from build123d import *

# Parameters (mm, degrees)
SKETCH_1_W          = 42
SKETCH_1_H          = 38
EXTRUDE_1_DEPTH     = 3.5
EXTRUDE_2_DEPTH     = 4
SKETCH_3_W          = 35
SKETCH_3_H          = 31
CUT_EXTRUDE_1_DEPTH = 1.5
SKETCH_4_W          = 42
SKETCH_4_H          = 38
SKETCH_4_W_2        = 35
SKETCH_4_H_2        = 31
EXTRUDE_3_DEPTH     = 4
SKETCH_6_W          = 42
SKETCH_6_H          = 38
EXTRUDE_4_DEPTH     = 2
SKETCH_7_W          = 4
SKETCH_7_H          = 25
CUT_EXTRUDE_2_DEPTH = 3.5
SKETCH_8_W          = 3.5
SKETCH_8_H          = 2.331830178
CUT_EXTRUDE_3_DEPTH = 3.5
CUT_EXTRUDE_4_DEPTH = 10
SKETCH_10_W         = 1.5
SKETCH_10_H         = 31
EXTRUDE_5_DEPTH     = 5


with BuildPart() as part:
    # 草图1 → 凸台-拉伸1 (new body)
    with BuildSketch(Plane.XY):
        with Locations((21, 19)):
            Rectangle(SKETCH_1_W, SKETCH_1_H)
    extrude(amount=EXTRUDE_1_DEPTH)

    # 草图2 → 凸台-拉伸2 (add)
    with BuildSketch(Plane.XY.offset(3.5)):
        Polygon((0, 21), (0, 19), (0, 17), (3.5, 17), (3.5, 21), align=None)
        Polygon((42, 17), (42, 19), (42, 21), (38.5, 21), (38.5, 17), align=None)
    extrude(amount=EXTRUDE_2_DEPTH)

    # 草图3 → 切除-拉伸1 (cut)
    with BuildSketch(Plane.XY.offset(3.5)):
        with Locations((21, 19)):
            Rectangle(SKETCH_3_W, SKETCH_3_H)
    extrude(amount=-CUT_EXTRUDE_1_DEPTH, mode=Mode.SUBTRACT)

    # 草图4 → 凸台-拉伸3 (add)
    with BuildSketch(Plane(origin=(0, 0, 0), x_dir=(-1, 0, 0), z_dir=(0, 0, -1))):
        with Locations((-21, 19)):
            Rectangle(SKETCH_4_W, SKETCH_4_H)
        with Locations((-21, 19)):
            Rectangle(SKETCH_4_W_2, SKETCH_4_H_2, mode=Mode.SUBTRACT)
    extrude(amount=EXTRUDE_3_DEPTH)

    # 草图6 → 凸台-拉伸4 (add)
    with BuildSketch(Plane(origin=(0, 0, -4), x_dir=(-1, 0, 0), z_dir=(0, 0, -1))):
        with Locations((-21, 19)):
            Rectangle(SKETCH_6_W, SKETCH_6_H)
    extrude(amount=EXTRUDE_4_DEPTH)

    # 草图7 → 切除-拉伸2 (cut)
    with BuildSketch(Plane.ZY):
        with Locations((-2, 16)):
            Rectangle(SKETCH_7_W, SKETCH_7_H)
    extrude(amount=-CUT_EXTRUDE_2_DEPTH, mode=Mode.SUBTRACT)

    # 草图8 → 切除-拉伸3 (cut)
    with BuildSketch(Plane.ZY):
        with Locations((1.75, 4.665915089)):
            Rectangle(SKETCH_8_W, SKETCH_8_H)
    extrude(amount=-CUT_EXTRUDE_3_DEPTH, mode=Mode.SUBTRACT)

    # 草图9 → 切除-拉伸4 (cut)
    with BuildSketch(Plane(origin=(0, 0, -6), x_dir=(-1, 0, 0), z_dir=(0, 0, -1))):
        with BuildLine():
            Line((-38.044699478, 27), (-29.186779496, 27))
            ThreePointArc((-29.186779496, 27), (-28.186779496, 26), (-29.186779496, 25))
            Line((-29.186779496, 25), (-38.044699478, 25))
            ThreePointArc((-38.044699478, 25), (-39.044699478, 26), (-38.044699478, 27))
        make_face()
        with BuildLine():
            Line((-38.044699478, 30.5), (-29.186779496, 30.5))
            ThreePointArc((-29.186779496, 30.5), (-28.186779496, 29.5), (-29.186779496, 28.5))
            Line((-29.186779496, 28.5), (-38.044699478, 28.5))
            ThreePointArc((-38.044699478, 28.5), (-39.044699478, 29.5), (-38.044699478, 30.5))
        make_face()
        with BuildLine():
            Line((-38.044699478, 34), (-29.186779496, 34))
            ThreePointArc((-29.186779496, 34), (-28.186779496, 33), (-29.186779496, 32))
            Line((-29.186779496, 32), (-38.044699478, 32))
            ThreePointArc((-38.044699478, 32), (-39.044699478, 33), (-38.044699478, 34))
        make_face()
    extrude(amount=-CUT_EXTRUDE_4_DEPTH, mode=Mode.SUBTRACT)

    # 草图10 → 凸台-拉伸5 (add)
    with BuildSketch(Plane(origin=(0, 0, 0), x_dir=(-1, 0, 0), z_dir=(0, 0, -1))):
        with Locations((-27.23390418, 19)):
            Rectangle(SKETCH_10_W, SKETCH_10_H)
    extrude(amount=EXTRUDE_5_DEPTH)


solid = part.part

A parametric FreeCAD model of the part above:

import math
import FreeCAD as App
import Part
import Sketcher
Q = App.Units.Quantity

doc = App.newDocument("Part")
params = doc.addObject("Spreadsheet::Sheet", "Params")
for row, (alias, value) in enumerate([
    ("sketch1_width", "42 mm"),
    ("sketch1_height", "38 mm"),
    ("pad1_length", "3.5 mm"),
    ("sketch2_height", "4 mm"),
    ("sketch2_width", "3.5 mm"),
    ("pad2_length", "4 mm"),
    ("sketch3_width", "35 mm"),
    ("sketch3_height", "31 mm"),
    ("pocket1_length", "1.5 mm"),
    ("sketch4_width", "42 mm"),
    ("sketch4_width2", "35 mm"),
    ("sketch4_height", "38 mm"),
    ("sketch4_height2", "31 mm"),
    ("pad3_length", "4 mm"),
    ("sketch5_width", "42 mm"),
    ("sketch5_height", "38 mm"),
    ("pad4_length", "2 mm"),
    ("sketch6_width", "25 mm"),
    ("sketch6_height", "4 mm"),
    ("pocket2_length", "3.5 mm"),
    ("sketch7_height", "3.5 mm"),
    ("pocket3_length", "3.5 mm"),
    ("sketch8_radius", "1 mm"),
    ("pocket4_length", "10 mm"),
    ("sketch9_height", "31 mm"),
    ("sketch9_width", "1.5 mm"),
    ("pad5_length", "5 mm"),
], start=1):
    params.set(f"A{row}", alias)
    params.set(f"B{row}", "=" + value)
    params.setAlias(f"B{row}", alias)

body = doc.addObject("PartDesign::Body", "Body")

# Sketch on XY plane
sketch1 = doc.addObject("Sketcher::SketchObject", "Sketch")
body.addObject(sketch1)
sketch1.AttachmentSupport = (doc.XY_Plane, [""])
sketch1.MapMode = "FlatFace"
sketch1.addGeometry(Part.LineSegment(App.Vector(0, 38, 0), App.Vector(0, 0, 0)), False)
sketch1.addGeometry(Part.LineSegment(App.Vector(0, 0, 0), App.Vector(42, 0, 0)), False)
sketch1.addGeometry(Part.LineSegment(App.Vector(42, 0, 0), App.Vector(42, 38, 0)), False)
sketch1.addGeometry(Part.LineSegment(App.Vector(42, 38, 0), App.Vector(0, 38, 0)), False)
sketch1.addConstraint(Sketcher.Constraint("Coincident", 0, 2, 1, 1))
sketch1.addConstraint(Sketcher.Constraint("Coincident", 1, 2, 2, 1))
sketch1.addConstraint(Sketcher.Constraint("Coincident", 2, 2, 3, 1))
sketch1.addConstraint(Sketcher.Constraint("Coincident", 3, 2, 0, 1))
sketch1.addConstraint(Sketcher.Constraint("Vertical", 0))
sketch1.addConstraint(Sketcher.Constraint("Horizontal", 1))
sketch1.addConstraint(Sketcher.Constraint("Vertical", 2))
sketch1.addConstraint(Sketcher.Constraint("Horizontal", 3))
sketch1.addConstraint(Sketcher.Constraint("Coincident", 0, 2, -1, 1))
sketch1.addConstraint(Sketcher.Constraint("DistanceX", 1, 1, 1, 2, Q("42 mm")))
sketch1.addConstraint(Sketcher.Constraint("DistanceY", 0, 2, 0, 1, Q("38 mm")))
sketch1.setExpression("Constraints[9]", "Params.sketch1_width")
sketch1.setExpression("Constraints[10]", "Params.sketch1_height")
pad1 = doc.addObject("PartDesign::Pad", "Pad")
body.addObject(pad1)
pad1.Profile = sketch1
pad1.setExpression("Length", "Params.pad1_length")

# Sketch on XY plane
sketch2 = doc.addObject("Sketcher::SketchObject", "Sketch001")
body.addObject(sketch2)
sketch2.AttachmentSupport = (doc.XY_Plane, [""])
sketch2.MapMode = "FlatFace"
sketch2.AttachmentOffset = App.Placement(App.Vector(0, 0, 3.5), App.Rotation())
sketch2.addGeometry(Part.LineSegment(App.Vector(0, 21, 0), App.Vector(0, 17, 0)), False)
sketch2.addGeometry(Part.LineSegment(App.Vector(0, 17, 0), App.Vector(3.5, 17, 0)), False)
sketch2.addGeometry(Part.LineSegment(App.Vector(3.5, 17, 0), App.Vector(3.5, 21, 0)), False)
sketch2.addGeometry(Part.LineSegment(App.Vector(3.5, 21, 0), App.Vector(0, 21, 0)), False)
sketch2.addGeometry(Part.LineSegment(App.Vector(42, 17, 0), App.Vector(42, 21, 0)), False)
sketch2.addGeometry(Part.LineSegment(App.Vector(42, 21, 0), App.Vector(38.5, 21, 0)), False)
sketch2.addGeometry(Part.LineSegment(App.Vector(38.5, 21, 0), App.Vector(38.5, 17, 0)), False)
sketch2.addGeometry(Part.LineSegment(App.Vector(38.5, 17, 0), App.Vector(42, 17, 0)), False)
sketch2.addConstraint(Sketcher.Constraint("Coincident", 0, 2, 1, 1))
sketch2.addConstraint(Sketcher.Constraint("Coincident", 1, 2, 2, 1))
sketch2.addConstraint(Sketcher.Constraint("Coincident", 2, 2, 3, 1))
sketch2.addConstraint(Sketcher.Constraint("Coincident", 3, 2, 0, 1))
sketch2.addConstraint(Sketcher.Constraint("Coincident", 4, 2, 5, 1))
sketch2.addConstraint(Sketcher.Constraint("Coincident", 5, 2, 6, 1))
sketch2.addConstraint(Sketcher.Constraint("Coincident", 6, 2, 7, 1))
sketch2.addConstraint(Sketcher.Constraint("Coincident", 7, 2, 4, 1))
sketch2.addConstraint(Sketcher.Constraint("Vertical", 0))
sketch2.addConstraint(Sketcher.Constraint("Horizontal", 1))
sketch2.addConstraint(Sketcher.Constraint("Vertical", 2))
sketch2.addConstraint(Sketcher.Constraint("Horizontal", 3))
sketch2.addConstraint(Sketcher.Constraint("Vertical", 4))
sketch2.addConstraint(Sketcher.Constraint("Horizontal", 5))
sketch2.addConstraint(Sketcher.Constraint("Vertical", 6))
sketch2.addConstraint(Sketcher.Constraint("Horizontal", 7))
sketch2.addConstraint(Sketcher.Constraint("PointOnObject", 0, 2, -2))
sketch2.addConstraint(Sketcher.Constraint("Horizontal", 3, 2, 4, 2))
sketch2.addConstraint(Sketcher.Constraint("Horizontal", 1, 2, 6, 2))
sketch2.addConstraint(Sketcher.Constraint("Equal", 3, 5))
sketch2.addConstraint(Sketcher.Constraint("DistanceY", 0, 2, 0, 1, Q("4 mm")))
sketch2.addConstraint(Sketcher.Constraint("DistanceX", 1, 1, 1, 2, Q("3.5 mm")))
sketch2.addConstraint(Sketcher.Constraint("DistanceY", -1, 1, 0, 2, Q("17 mm")))
sketch2.addConstraint(Sketcher.Constraint("DistanceX", -1, 1, 4, 2, Q("42 mm")))
sketch2.setExpression("Constraints[20]", "Params.sketch2_height")
sketch2.setExpression("Constraints[21]", "Params.sketch2_width")
pad2 = doc.addObject("PartDesign::Pad", "Pad001")
body.addObject(pad2)
pad2.Profile = sketch2
pad2.setExpression("Length", "Params.pad2_length")

# Sketch on XY plane
sketch3 = doc.addObject("Sketcher::SketchObject", "Sketch002")
body.addObject(sketch3)
sketch3.AttachmentSupport = (doc.XY_Plane, [""])
sketch3.MapMode = "FlatFace"
sketch3.AttachmentOffset = App.Placement(App.Vector(0, 0, 3.5), App.Rotation())
sketch3.addGeometry(Part.LineSegment(App.Vector(4, 34, 0), App.Vector(4, 4, 0)), False)
sketch3.addGeometry(Part.LineSegment(App.Vector(4, 4, 0), App.Vector(38, 4, 0)), False)
sketch3.addGeometry(Part.LineSegment(App.Vector(38, 4, 0), App.Vector(38, 34, 0)), False)
sketch3.addGeometry(Part.LineSegment(App.Vector(38, 34, 0), App.Vector(4, 34, 0)), False)
sketch3.addConstraint(Sketcher.Constraint("Coincident", 0, 2, 1, 1))
sketch3.addConstraint(Sketcher.Constraint("Coincident", 1, 2, 2, 1))
sketch3.addConstraint(Sketcher.Constraint("Coincident", 2, 2, 3, 1))
sketch3.addConstraint(Sketcher.Constraint("Coincident", 3, 2, 0, 1))
sketch3.addConstraint(Sketcher.Constraint("Vertical", 0))
sketch3.addConstraint(Sketcher.Constraint("Horizontal", 1))
sketch3.addConstraint(Sketcher.Constraint("Vertical", 2))
sketch3.addConstraint(Sketcher.Constraint("Horizontal", 3))
sketch3.addConstraint(Sketcher.Constraint("DistanceX", 1, 1, 1, 2, Q("35 mm")))
sketch3.addConstraint(Sketcher.Constraint("DistanceY", 0, 2, 0, 1, Q("31 mm")))
sketch3.addConstraint(Sketcher.Constraint("DistanceX", -1, 1, 0, 2, Q("3.5 mm")))
sketch3.addConstraint(Sketcher.Constraint("DistanceY", -1, 1, 0, 2, Q("3.5 mm")))
sketch3.setExpression("Constraints[8]", "Params.sketch3_width")
sketch3.setExpression("Constraints[9]", "Params.sketch3_height")
pocket1 = doc.addObject("PartDesign::Pocket", "Pocket")
body.addObject(pocket1)
pocket1.Profile = sketch3
pocket1.setExpression("Length", "Params.pocket1_length")

# Sketch on XY plane
sketch4 = doc.addObject("Sketcher::SketchObject", "Sketch003")
body.addObject(sketch4)
sketch4.AttachmentSupport = (doc.XY_Plane, [""])
sketch4.MapMode = "FlatFace"
sketch4.addGeometry(Part.LineSegment(App.Vector(42, 38, 0), App.Vector(42, 0, 0)), False)
sketch4.addGeometry(Part.LineSegment(App.Vector(42, 0, 0), App.Vector(0, 0, 0)), False)
sketch4.addGeometry(Part.LineSegment(App.Vector(0, 0, 0), App.Vector(0, 38, 0)), False)
sketch4.addGeometry(Part.LineSegment(App.Vector(0, 38, 0), App.Vector(42, 38, 0)), False)
sketch4.addGeometry(Part.LineSegment(App.Vector(4, 4, 0), App.Vector(38, 4, 0)), False)
sketch4.addGeometry(Part.LineSegment(App.Vector(38, 4, 0), App.Vector(38, 34, 0)), False)
sketch4.addGeometry(Part.LineSegment(App.Vector(38, 34, 0), App.Vector(4, 34, 0)), False)
sketch4.addGeometry(Part.LineSegment(App.Vector(4, 34, 0), App.Vector(4, 4, 0)), False)
sketch4.addConstraint(Sketcher.Constraint("Coincident", 0, 2, 1, 1))
sketch4.addConstraint(Sketcher.Constraint("Coincident", 1, 2, 2, 1))
sketch4.addConstraint(Sketcher.Constraint("Coincident", 2, 2, 3, 1))
sketch4.addConstraint(Sketcher.Constraint("Coincident", 3, 2, 0, 1))
sketch4.addConstraint(Sketcher.Constraint("Coincident", 4, 2, 5, 1))
sketch4.addConstraint(Sketcher.Constraint("Coincident", 5, 2, 6, 1))
sketch4.addConstraint(Sketcher.Constraint("Coincident", 6, 2, 7, 1))
sketch4.addConstraint(Sketcher.Constraint("Coincident", 7, 2, 4, 1))
sketch4.addConstraint(Sketcher.Constraint("Vertical", 0))
sketch4.addConstraint(Sketcher.Constraint("Horizontal", 1))
sketch4.addConstraint(Sketcher.Constraint("Vertical", 2))
sketch4.addConstraint(Sketcher.Constraint("Horizontal", 3))
sketch4.addConstraint(Sketcher.Constraint("Horizontal", 4))
sketch4.addConstraint(Sketcher.Constraint("Vertical", 5))
sketch4.addConstraint(Sketcher.Constraint("Horizontal", 6))
sketch4.addConstraint(Sketcher.Constraint("Vertical", 7))
sketch4.addConstraint(Sketcher.Constraint("Coincident", 1, 2, -1, 1))
sketch4.addConstraint(Sketcher.Constraint("DistanceX", 1, 2, 1, 1, Q("42 mm")))
sketch4.addConstraint(Sketcher.Constraint("DistanceX", 4, 1, 4, 2, Q("35 mm")))
sketch4.addConstraint(Sketcher.Constraint("DistanceY", 0, 2, 0, 1, Q("38 mm")))
sketch4.addConstraint(Sketcher.Constraint("DistanceY", 5, 1, 5, 2, Q("31 mm")))
sketch4.addConstraint(Sketcher.Constraint("DistanceX", -1, 1, 4, 2, Q("38.5 mm")))
sketch4.addConstraint(Sketcher.Constraint("DistanceY", -1, 1, 4, 2, Q("3.5 mm")))
sketch4.setExpression("Constraints[17]", "Params.sketch4_width")
sketch4.setExpression("Constraints[18]", "Params.sketch4_width2")
sketch4.setExpression("Constraints[19]", "Params.sketch4_height")
sketch4.setExpression("Constraints[20]", "Params.sketch4_height2")
pad3 = doc.addObject("PartDesign::Pad", "Pad002")
body.addObject(pad3)
pad3.Profile = sketch4
pad3.setExpression("Length", "Params.pad3_length")
pad3.Reversed = True

# Sketch on XY plane
sketch5 = doc.addObject("Sketcher::SketchObject", "Sketch004")
body.addObject(sketch5)
sketch5.AttachmentSupport = (doc.XY_Plane, [""])
sketch5.MapMode = "FlatFace"
sketch5.AttachmentOffset = App.Placement(App.Vector(0, 0, -4), App.Rotation())
sketch5.addGeometry(Part.LineSegment(App.Vector(42, 38, 0), App.Vector(42, 0, 0)), False)
sketch5.addGeometry(Part.LineSegment(App.Vector(42, 0, 0), App.Vector(0, 0, 0)), False)
sketch5.addGeometry(Part.LineSegment(App.Vector(0, 0, 0), App.Vector(0, 38, 0)), False)
sketch5.addGeometry(Part.LineSegment(App.Vector(0, 38, 0), App.Vector(42, 38, 0)), False)
sketch5.addConstraint(Sketcher.Constraint("Coincident", 0, 2, 1, 1))
sketch5.addConstraint(Sketcher.Constraint("Coincident", 1, 2, 2, 1))
sketch5.addConstraint(Sketcher.Constraint("Coincident", 2, 2, 3, 1))
sketch5.addConstraint(Sketcher.Constraint("Coincident", 3, 2, 0, 1))
sketch5.addConstraint(Sketcher.Constraint("Vertical", 0))
sketch5.addConstraint(Sketcher.Constraint("Horizontal", 1))
sketch5.addConstraint(Sketcher.Constraint("Vertical", 2))
sketch5.addConstraint(Sketcher.Constraint("Horizontal", 3))
sketch5.addConstraint(Sketcher.Constraint("Coincident", 1, 2, -1, 1))
sketch5.addConstraint(Sketcher.Constraint("DistanceX", 1, 2, 1, 1, Q("42 mm")))
sketch5.addConstraint(Sketcher.Constraint("DistanceY", 0, 2, 0, 1, Q("38 mm")))
sketch5.setExpression("Constraints[9]", "Params.sketch5_width")
sketch5.setExpression("Constraints[10]", "Params.sketch5_height")
pad4 = doc.addObject("PartDesign::Pad", "Pad003")
body.addObject(pad4)
pad4.Profile = sketch5
pad4.setExpression("Length", "Params.pad4_length")
pad4.Reversed = True

# Sketch on YZ plane
sketch6 = doc.addObject("Sketcher::SketchObject", "Sketch005")
body.addObject(sketch6)
sketch6.AttachmentSupport = (doc.YZ_Plane, [""])
sketch6.MapMode = "FlatFace"
sketch6.addGeometry(Part.LineSegment(App.Vector(28.5, -4, 0), App.Vector(3.5, -4, 0)), False)
sketch6.addGeometry(Part.LineSegment(App.Vector(3.5, -4, 0), App.Vector(3.5, 0, 0)), False)
sketch6.addGeometry(Part.LineSegment(App.Vector(3.5, 0, 0), App.Vector(28.5, 0, 0)), False)
sketch6.addGeometry(Part.LineSegment(App.Vector(28.5, 0, 0), App.Vector(28.5, -4, 0)), False)
sketch6.addConstraint(Sketcher.Constraint("Coincident", 0, 2, 1, 1))
sketch6.addConstraint(Sketcher.Constraint("Coincident", 1, 2, 2, 1))
sketch6.addConstraint(Sketcher.Constraint("Coincident", 2, 2, 3, 1))
sketch6.addConstraint(Sketcher.Constraint("Coincident", 3, 2, 0, 1))
sketch6.addConstraint(Sketcher.Constraint("Horizontal", 0))
sketch6.addConstraint(Sketcher.Constraint("Vertical", 1))
sketch6.addConstraint(Sketcher.Constraint("Horizontal", 2))
sketch6.addConstraint(Sketcher.Constraint("Vertical", 3))
sketch6.addConstraint(Sketcher.Constraint("PointOnObject", 1, 2, -1))
sketch6.addConstraint(Sketcher.Constraint("DistanceX", 0, 2, 0, 1, Q("25 mm")))
sketch6.addConstraint(Sketcher.Constraint("DistanceY", 1, 1, 1, 2, Q("4 mm")))
sketch6.addConstraint(Sketcher.Constraint("DistanceX", -1, 1, 0, 2, Q("3.5 mm")))
sketch6.setExpression("Constraints[9]", "Params.sketch6_width")
sketch6.setExpression("Constraints[10]", "Params.sketch6_height")
pocket2 = doc.addObject("PartDesign::Pocket", "Pocket001")
body.addObject(pocket2)
pocket2.Profile = sketch6
pocket2.setExpression("Length", "Params.pocket2_length")
pocket2.Reversed = True

# Sketch on YZ plane
sketch7 = doc.addObject("Sketcher::SketchObject", "Sketch006")
body.addObject(sketch7)
sketch7.AttachmentSupport = (doc.YZ_Plane, [""])
sketch7.MapMode = "FlatFace"
sketch7.addGeometry(Part.LineSegment(App.Vector(5.8, 0, 0), App.Vector(3.5, 0, 0)), False)
sketch7.addGeometry(Part.LineSegment(App.Vector(3.5, 0, 0), App.Vector(3.5, 3.5, 0)), False)
sketch7.addGeometry(Part.LineSegment(App.Vector(3.5, 3.5, 0), App.Vector(5.8, 3.5, 0)), False)
sketch7.addGeometry(Part.LineSegment(App.Vector(5.8, 3.5, 0), App.Vector(5.8, 0, 0)), False)
sketch7.addConstraint(Sketcher.Constraint("Coincident", 0, 2, 1, 1))
sketch7.addConstraint(Sketcher.Constraint("Coincident", 1, 2, 2, 1))
sketch7.addConstraint(Sketcher.Constraint("Coincident", 2, 2, 3, 1))
sketch7.addConstraint(Sketcher.Constraint("Coincident", 3, 2, 0, 1))
sketch7.addConstraint(Sketcher.Constraint("Horizontal", 0))
sketch7.addConstraint(Sketcher.Constraint("Vertical", 1))
sketch7.addConstraint(Sketcher.Constraint("Horizontal", 2))
sketch7.addConstraint(Sketcher.Constraint("Vertical", 3))
sketch7.addConstraint(Sketcher.Constraint("PointOnObject", 0, 2, -1))
sketch7.addConstraint(Sketcher.Constraint("DistanceY", 1, 1, 1, 2, Q("3.5 mm")))
sketch7.addConstraint(Sketcher.Constraint("DistanceX", -1, 1, 0, 2, Q("3.5 mm")))
sketch7.addConstraint(Sketcher.Constraint("DistanceX", 0, 2, 0, 1, Q("2.33183 mm")))
sketch7.setExpression("Constraints[9]", "Params.sketch7_height")
pocket3 = doc.addObject("PartDesign::Pocket", "Pocket002")
body.addObject(pocket3)
pocket3.Profile = sketch7
pocket3.setExpression("Length", "Params.pocket3_length")
pocket3.Reversed = True

# Sketch on XY plane
sketch8 = doc.addObject("Sketcher::SketchObject", "Sketch007")
body.addObject(sketch8)
sketch8.AttachmentSupport = (doc.XY_Plane, [""])
sketch8.MapMode = "FlatFace"
sketch8.AttachmentOffset = App.Placement(App.Vector(0, 0, -6), App.Rotation())
sketch8.addGeometry(Part.LineSegment(App.Vector(29.2, 27, 0), App.Vector(38, 27, 0)), False)
sketch8.addGeometry(Part.ArcOfCircle(Part.Circle(App.Vector(38, 26, 0), App.Vector(0, 0, 1), 1), math.radians(-90), math.radians(90)), False)
sketch8.addGeometry(Part.LineSegment(App.Vector(38, 25, 0), App.Vector(29.2, 25, 0)), False)
sketch8.addGeometry(Part.ArcOfCircle(Part.Circle(App.Vector(29.2, 26, 0), App.Vector(0, 0, 1), 1), math.radians(90), math.radians(270)), False)
sketch8.addGeometry(Part.LineSegment(App.Vector(29.2, 30.5, 0), App.Vector(38, 30.5, 0)), False)
sketch8.addGeometry(Part.ArcOfCircle(Part.Circle(App.Vector(38, 29.5, 0), App.Vector(0, 0, 1), 1), math.radians(-90), math.radians(90)), False)
sketch8.addGeometry(Part.LineSegment(App.Vector(38, 28.5, 0), App.Vector(29.2, 28.5, 0)), False)
sketch8.addGeometry(Part.ArcOfCircle(Part.Circle(App.Vector(29.2, 29.5, 0), App.Vector(0, 0, 1), 1), math.radians(90), math.radians(270)), False)
sketch8.addGeometry(Part.LineSegment(App.Vector(29.2, 34, 0), App.Vector(38, 34, 0)), False)
sketch8.addGeometry(Part.ArcOfCircle(Part.Circle(App.Vector(38, 33, 0), App.Vector(0, 0, 1), 1), math.radians(-90), math.radians(90)), False)
sketch8.addGeometry(Part.LineSegment(App.Vector(38, 32, 0), App.Vector(29.2, 32, 0)), False)
sketch8.addGeometry(Part.ArcOfCircle(Part.Circle(App.Vector(29.2, 33, 0), App.Vector(0, 0, 1), 1), math.radians(90), math.radians(270)), False)
sketch8.addConstraint(Sketcher.Constraint("Tangent", 0, 2, 1, 2))
sketch8.addConstraint(Sketcher.Constraint("Tangent", 1, 1, 2, 1))
sketch8.addConstraint(Sketcher.Constraint("Tangent", 2, 2, 3, 2))
sketch8.addConstraint(Sketcher.Constraint("Tangent", 3, 1, 0, 1))
sketch8.addConstraint(Sketcher.Constraint("Tangent", 4, 2, 5, 2))
sketch8.addConstraint(Sketcher.Constraint("Tangent", 5, 1, 6, 1))
sketch8.addConstraint(Sketcher.Constraint("Tangent", 6, 2, 7, 2))
sketch8.addConstraint(Sketcher.Constraint("Tangent", 7, 1, 4, 1))
sketch8.addConstraint(Sketcher.Constraint("Tangent", 8, 2, 9, 2))
sketch8.addConstraint(Sketcher.Constraint("Tangent", 9, 1, 10, 1))
sketch8.addConstraint(Sketcher.Constraint("Tangent", 10, 2, 11, 2))
sketch8.addConstraint(Sketcher.Constraint("Tangent", 11, 1, 8, 1))
sketch8.addConstraint(Sketcher.Constraint("Horizontal", 0))
sketch8.addConstraint(Sketcher.Constraint("Horizontal", 2))
sketch8.addConstraint(Sketcher.Constraint("Horizontal", 4))
sketch8.addConstraint(Sketcher.Constraint("Horizontal", 6))
sketch8.addConstraint(Sketcher.Constraint("Horizontal", 8))
sketch8.addConstraint(Sketcher.Constraint("Horizontal", 10))
sketch8.addConstraint(Sketcher.Constraint("Equal", 3, 5))
sketch8.addConstraint(Sketcher.Constraint("Equal", 7, 9))
sketch8.addConstraint(Sketcher.Constraint("Vertical", 1, 3, 5, 3))
sketch8.addConstraint(Sketcher.Constraint("Vertical", 3, 3, 7, 3))
sketch8.addConstraint(Sketcher.Constraint("Vertical", 5, 3, 9, 3))
sketch8.addConstraint(Sketcher.Constraint("Vertical", 7, 3, 11, 3))
sketch8.addConstraint(Sketcher.Constraint("Radius", 1, Q("1 mm")))
sketch8.addConstraint(Sketcher.Constraint("DistanceY", -1, 1, 1, 3, Q("26 mm")))
sketch8.addConstraint(Sketcher.Constraint("DistanceY", -1, 1, 9, 3, Q("33 mm")))
sketch8.addConstraint(Sketcher.Constraint("DistanceY", -1, 1, 5, 3, Q("29.5 mm")))
sketch8.addConstraint(Sketcher.Constraint("DistanceX", 0, 1, 0, 2, Q("8.85792 mm")))
sketch8.addConstraint(Sketcher.Constraint("DistanceX", -1, 1, 1, 3, Q("38.044699 mm")))
sketch8.setExpression("Constraints[24]", "Params.sketch8_radius")
pocket4 = doc.addObject("PartDesign::Pocket", "Pocket003")
body.addObject(pocket4)
pocket4.Profile = sketch8
pocket4.setExpression("Length", "Params.pocket4_length")
pocket4.Reversed = True

# Sketch on XY plane
sketch9 = doc.addObject("Sketcher::SketchObject", "Sketch008")
body.addObject(sketch9)
sketch9.AttachmentSupport = (doc.XY_Plane, [""])
sketch9.MapMode = "FlatFace"
sketch9.addGeometry(Part.LineSegment(App.Vector(28, 34.5, 0), App.Vector(28, 3.5, 0)), False)
sketch9.addGeometry(Part.LineSegment(App.Vector(28, 3.5, 0), App.Vector(26.5, 3.5, 0)), False)
sketch9.addGeometry(Part.LineSegment(App.Vector(26.5, 3.5, 0), App.Vector(26.5, 34.5, 0)), False)
sketch9.addGeometry(Part.LineSegment(App.Vector(26.5, 34.5, 0), App.Vector(28, 34.5, 0)), False)
sketch9.addConstraint(Sketcher.Constraint("Coincident", 0, 2, 1, 1))
sketch9.addConstraint(Sketcher.Constraint("Coincident", 1, 2, 2, 1))
sketch9.addConstraint(Sketcher.Constraint("Coincident", 2, 2, 3, 1))
sketch9.addConstraint(Sketcher.Constraint("Coincident", 3, 2, 0, 1))
sketch9.addConstraint(Sketcher.Constraint("Vertical", 0))
sketch9.addConstraint(Sketcher.Constraint("Horizontal", 1))
sketch9.addConstraint(Sketcher.Constraint("Vertical", 2))
sketch9.addConstraint(Sketcher.Constraint("Horizontal", 3))
sketch9.addConstraint(Sketcher.Constraint("DistanceY", 0, 2, 0, 1, Q("31 mm")))
sketch9.addConstraint(Sketcher.Constraint("DistanceX", 1, 2, 1, 1, Q("1.5 mm")))
sketch9.addConstraint(Sketcher.Constraint("DistanceY", -1, 1, 0, 2, Q("3.5 mm")))
sketch9.addConstraint(Sketcher.Constraint("DistanceX", -1, 1, 0, 2, Q("27.983904 mm")))
sketch9.setExpression("Constraints[8]", "Params.sketch9_height")
sketch9.setExpression("Constraints[9]", "Params.sketch9_width")
pad5 = doc.addObject("PartDesign::Pad", "Pad004")
body.addObject(pad5)
pad5.Profile = sketch9
pad5.setExpression("Length", "Params.pad5_length")
pad5.Reversed = True

doc.recompute()
